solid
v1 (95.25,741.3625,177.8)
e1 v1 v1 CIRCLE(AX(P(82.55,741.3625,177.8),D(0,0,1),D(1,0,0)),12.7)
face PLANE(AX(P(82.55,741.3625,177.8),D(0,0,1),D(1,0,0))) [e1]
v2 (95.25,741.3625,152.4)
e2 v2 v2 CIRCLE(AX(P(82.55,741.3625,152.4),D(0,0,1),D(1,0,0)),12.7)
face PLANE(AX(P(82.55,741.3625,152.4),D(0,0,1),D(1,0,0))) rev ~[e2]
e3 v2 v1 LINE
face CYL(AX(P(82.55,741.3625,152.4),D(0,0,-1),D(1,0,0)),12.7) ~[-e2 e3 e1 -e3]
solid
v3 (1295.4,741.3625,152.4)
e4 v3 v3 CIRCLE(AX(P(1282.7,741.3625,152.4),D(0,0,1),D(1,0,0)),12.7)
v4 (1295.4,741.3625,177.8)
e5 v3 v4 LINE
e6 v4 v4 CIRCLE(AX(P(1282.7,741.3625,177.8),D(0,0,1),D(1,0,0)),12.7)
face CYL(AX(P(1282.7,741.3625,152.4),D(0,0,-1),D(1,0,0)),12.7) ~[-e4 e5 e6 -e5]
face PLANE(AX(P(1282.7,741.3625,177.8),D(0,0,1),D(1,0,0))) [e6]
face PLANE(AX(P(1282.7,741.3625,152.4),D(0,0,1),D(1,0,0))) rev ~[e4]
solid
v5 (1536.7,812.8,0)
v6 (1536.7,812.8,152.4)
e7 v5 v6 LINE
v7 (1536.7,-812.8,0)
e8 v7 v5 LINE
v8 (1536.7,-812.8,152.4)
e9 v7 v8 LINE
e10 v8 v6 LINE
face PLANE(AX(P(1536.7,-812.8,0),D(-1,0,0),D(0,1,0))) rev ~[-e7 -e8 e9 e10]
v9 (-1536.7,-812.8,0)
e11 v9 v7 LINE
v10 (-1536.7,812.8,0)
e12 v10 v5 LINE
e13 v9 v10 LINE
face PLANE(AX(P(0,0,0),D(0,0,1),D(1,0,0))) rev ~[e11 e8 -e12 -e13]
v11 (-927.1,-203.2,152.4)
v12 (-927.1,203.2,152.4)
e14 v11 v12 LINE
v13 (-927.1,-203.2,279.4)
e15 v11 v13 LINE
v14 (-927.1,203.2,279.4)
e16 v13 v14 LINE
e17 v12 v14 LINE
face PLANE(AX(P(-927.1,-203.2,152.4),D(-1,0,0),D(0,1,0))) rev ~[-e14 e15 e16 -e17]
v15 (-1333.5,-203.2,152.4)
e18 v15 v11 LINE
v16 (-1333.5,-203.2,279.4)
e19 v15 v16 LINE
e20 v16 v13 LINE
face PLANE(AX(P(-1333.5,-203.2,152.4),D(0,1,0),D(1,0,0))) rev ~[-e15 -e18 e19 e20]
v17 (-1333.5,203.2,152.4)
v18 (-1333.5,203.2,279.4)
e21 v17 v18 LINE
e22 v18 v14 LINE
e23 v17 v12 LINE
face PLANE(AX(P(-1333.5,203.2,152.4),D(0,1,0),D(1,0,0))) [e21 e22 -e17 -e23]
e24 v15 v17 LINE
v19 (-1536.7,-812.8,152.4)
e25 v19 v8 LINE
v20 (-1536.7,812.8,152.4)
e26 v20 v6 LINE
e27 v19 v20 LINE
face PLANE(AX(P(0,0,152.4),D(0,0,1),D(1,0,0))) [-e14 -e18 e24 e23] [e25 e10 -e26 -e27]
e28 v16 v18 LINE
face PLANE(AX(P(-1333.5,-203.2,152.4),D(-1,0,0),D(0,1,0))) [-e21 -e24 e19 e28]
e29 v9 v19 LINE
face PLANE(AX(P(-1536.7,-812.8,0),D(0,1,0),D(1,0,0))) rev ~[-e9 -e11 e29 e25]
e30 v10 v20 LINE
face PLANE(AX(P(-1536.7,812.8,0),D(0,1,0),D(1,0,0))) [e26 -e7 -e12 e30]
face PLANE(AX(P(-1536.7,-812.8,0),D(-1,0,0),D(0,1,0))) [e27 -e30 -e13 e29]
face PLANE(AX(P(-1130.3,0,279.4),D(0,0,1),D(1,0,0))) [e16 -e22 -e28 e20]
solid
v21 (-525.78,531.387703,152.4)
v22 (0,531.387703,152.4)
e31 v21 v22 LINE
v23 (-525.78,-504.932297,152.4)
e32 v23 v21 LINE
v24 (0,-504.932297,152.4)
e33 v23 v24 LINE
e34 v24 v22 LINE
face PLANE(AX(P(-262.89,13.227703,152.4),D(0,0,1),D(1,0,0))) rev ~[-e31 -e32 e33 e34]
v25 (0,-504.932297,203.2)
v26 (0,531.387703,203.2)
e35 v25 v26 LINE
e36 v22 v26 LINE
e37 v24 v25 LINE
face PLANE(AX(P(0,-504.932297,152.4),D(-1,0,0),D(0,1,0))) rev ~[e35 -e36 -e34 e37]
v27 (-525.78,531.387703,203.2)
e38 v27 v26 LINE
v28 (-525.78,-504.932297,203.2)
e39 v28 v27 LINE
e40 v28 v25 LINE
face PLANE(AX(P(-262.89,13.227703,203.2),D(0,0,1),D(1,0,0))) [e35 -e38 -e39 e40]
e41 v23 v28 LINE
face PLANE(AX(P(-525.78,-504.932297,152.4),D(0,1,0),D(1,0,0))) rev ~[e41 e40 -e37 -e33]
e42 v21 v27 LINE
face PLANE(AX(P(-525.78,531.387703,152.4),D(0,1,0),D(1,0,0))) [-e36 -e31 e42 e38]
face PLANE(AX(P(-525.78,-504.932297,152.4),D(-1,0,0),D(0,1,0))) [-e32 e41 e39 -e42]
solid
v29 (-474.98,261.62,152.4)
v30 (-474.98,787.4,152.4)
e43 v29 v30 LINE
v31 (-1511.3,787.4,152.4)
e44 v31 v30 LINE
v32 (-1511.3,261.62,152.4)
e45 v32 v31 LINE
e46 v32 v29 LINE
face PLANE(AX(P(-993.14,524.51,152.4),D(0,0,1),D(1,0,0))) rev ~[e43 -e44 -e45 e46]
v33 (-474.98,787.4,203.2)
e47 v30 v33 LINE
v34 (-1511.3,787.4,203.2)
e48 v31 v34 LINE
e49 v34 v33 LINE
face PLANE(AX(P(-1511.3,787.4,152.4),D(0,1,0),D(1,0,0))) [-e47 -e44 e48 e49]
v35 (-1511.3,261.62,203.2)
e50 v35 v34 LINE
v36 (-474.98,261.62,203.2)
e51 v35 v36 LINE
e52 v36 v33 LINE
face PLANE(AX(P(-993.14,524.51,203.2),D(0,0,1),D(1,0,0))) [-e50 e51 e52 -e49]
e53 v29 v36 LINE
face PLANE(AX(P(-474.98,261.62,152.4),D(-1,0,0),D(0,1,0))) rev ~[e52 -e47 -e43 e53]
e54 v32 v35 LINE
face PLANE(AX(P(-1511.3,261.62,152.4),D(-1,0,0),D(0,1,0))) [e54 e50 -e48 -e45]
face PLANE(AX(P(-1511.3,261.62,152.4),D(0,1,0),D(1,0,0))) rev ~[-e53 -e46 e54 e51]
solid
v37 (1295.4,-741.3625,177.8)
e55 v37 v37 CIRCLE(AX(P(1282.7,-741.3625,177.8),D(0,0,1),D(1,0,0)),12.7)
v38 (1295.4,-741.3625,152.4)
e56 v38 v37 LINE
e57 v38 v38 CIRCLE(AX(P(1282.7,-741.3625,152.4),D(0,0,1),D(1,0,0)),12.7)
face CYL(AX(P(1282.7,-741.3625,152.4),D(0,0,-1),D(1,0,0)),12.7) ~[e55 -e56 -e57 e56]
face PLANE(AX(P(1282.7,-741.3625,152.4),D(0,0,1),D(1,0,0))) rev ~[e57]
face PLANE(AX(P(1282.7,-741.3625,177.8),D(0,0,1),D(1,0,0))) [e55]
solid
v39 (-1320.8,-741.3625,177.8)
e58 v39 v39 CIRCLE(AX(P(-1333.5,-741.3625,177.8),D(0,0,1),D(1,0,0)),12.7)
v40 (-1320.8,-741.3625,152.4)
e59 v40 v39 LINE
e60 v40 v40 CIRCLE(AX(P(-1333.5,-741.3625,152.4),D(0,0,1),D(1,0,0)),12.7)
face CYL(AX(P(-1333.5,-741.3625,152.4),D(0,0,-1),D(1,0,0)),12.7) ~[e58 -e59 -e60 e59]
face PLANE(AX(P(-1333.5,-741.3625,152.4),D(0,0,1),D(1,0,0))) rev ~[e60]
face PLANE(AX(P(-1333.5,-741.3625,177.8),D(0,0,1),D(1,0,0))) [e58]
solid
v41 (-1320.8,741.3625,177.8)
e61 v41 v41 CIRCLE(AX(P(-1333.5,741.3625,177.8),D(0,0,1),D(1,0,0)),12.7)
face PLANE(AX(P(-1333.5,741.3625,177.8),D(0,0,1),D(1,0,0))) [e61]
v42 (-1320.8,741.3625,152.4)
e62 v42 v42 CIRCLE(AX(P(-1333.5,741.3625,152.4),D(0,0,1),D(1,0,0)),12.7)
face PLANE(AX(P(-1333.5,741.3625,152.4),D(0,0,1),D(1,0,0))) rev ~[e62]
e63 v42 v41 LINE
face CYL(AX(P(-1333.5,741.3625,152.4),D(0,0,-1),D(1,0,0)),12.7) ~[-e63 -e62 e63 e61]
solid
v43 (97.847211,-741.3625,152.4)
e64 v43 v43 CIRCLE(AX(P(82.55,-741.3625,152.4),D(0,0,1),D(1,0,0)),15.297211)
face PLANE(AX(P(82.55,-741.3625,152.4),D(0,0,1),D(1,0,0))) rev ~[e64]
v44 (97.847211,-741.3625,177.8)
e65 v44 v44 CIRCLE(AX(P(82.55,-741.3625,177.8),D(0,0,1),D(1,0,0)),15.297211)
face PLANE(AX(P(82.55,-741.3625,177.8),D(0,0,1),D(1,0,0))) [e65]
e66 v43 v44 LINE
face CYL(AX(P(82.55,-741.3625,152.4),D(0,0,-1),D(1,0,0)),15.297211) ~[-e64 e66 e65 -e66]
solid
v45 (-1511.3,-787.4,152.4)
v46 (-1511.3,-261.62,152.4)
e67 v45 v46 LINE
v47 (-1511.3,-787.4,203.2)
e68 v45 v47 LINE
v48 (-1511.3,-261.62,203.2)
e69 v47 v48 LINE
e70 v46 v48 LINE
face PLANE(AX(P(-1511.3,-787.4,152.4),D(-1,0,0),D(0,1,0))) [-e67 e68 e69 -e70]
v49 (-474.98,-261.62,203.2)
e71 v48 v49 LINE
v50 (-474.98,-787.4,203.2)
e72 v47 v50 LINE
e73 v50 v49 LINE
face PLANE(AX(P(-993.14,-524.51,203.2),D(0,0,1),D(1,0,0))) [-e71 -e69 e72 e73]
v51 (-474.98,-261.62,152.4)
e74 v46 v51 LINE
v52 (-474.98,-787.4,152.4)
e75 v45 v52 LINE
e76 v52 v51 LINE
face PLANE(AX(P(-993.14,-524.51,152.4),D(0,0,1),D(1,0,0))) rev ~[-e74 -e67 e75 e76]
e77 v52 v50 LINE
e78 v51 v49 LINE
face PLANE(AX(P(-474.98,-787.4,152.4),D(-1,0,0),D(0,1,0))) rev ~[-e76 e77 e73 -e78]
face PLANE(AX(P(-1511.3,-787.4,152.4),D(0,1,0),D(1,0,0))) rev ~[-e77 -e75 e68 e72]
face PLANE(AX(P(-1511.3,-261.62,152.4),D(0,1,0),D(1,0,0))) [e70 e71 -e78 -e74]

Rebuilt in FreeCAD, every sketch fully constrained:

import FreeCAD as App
import Part
import Sketcher
from FreeCAD import Vector
Q = App.Units.Quantity


def add_polygon(sketch, points):
    """Adds a closed chain of lines whose ends are joined by coincident constraints."""
    first, n = sketch.GeometryCount, len(points)
    for a, b in zip(points, points[1:] + points[:1]):
        sketch.addGeometry(Part.LineSegment(App.Vector(*a, 0), App.Vector(*b, 0)), False)
    for i in range(n):
        sketch.addConstraint(Sketcher.Constraint("Coincident", first + i, 2, first + (i + 1) % n, 1))

doc = App.newDocument("Part")
body = doc.addObject("PartDesign::Body", "Body")

# Sketch on XY plane
sketch1 = body.newObject("Sketcher::SketchObject", "Sketch")
sketch1.AttachmentSupport = (doc.getObject("XY_Plane"), [""])
sketch1.MapMode = "FlatFace"
add_polygon(sketch1, [(-1537, 813), (-1537, -813), (1537, -813), (1537, 813)])  # lines 0-3
sketch1.addConstraint([
    Sketcher.Constraint("Vertical", 0),
    Sketcher.Constraint("Horizontal", 1),
    Sketcher.Constraint("Vertical", 2),
    Sketcher.Constraint("Horizontal", 3),
    Sketcher.Constraint("Symmetric", 0, 2, 2, 2, -1, 1),
    Sketcher.Constraint("DistanceX", 1, 1, 1, 2, Q("121 in")),
    Sketcher.Constraint("DistanceY", 0, 2, 0, 1, Q("64 in")),
])
pad1 = body.newObject("PartDesign::Pad", "Pad")
pad1.Profile = sketch1
pad1.Length = Q("6 in")

# Sketch on XY plane
sketch2 = body.newObject("Sketcher::SketchObject", "Sketch001")
sketch2.AttachmentSupport = (doc.getObject("XY_Plane"), [""])
sketch2.MapMode = "FlatFace"
sketch2.AttachmentOffset = App.Placement(Vector(0, 0, 6 * 25.4), App.Rotation())
add_polygon(sketch2, [(-1334, 203), (-1334, -203), (-927, -203), (-927, 203)])  # lines 0-3
sketch2.addConstraint([
    Sketcher.Constraint("Vertical", 0),
    Sketcher.Constraint("Horizontal", 1),
    Sketcher.Constraint("Vertical", 2),
    Sketcher.Constraint("Horizontal", 3),
    Sketcher.Constraint("Equal", 3, 0),
    Sketcher.Constraint("DistanceX", 1, 1, 1, 2, Q("16 in")),
    Sketcher.Constraint("DistanceY", 0, 2, -1, 1, Q("8 in")),
    Sketcher.Constraint("DistanceX", 0, 2, -1, 1, Q("52.5 in")),
])
pad2 = body.newObject("PartDesign::Pad", "Pad001")
pad2.Profile = sketch2
pad2.Length = Q("5 in")
body2 = doc.addObject("PartDesign::Body", "Body001")
body2.AllowCompound = True

# Sketch on XY plane
sketch3 = body2.newObject("Sketcher::SketchObject", "Sketch002")
sketch3.AttachmentSupport = (doc.getObject("XY_Plane001"), [""])
sketch3.MapMode = "FlatFace"
sketch3.AttachmentOffset = App.Placement(Vector(0, 0, 6 * 25.4), App.Rotation())
add_polygon(sketch3, [(-1511, -262), (-1511, -787), (-475, -787), (-475, -262)])  # lines 0-3
add_polygon(sketch3, [(-1511, 787), (-1511, 262), (-475, 262), (-475, 787)])  # lines 4-7
sketch3.addConstraint([
    Sketcher.Constraint("Vertical", 0),
    Sketcher.Constraint("Horizontal", 1),
    Sketcher.Constraint("Vertical", 2),
    Sketcher.Constraint("Horizontal", 3),
    Sketcher.Constraint("Vertical", 4),
    Sketcher.Constraint("Horizontal", 5),
    Sketcher.Constraint("Vertical", 6),
    Sketcher.Constraint("Horizontal", 7),
    Sketcher.Constraint("Symmetric", 3, 2, 4, 2, -1),
    Sketcher.Constraint("Symmetric", 1, 2, 6, 2, -1),
    Sketcher.Constraint("DistanceX", 1, 1, 1, 2, Q("40.8 in")),
    Sketcher.Constraint("DistanceY", 0, 2, 0, 1, Q("20.7 in")),
    Sketcher.Constraint("DistanceY", 0, 2, -1, 1, Q("31 in")),
    Sketcher.Constraint("DistanceX", 0, 2, -1, 1, Q("59.5 in")),
])
pad3 = body2.newObject("PartDesign::Pad", "Pad002")
pad3.Profile = sketch3
pad3.Length = Q("2 in")
body3 = doc.addObject("PartDesign::Body", "Body002")
body3.AllowCompound = True

# Sketch on XY plane
sketch4 = body3.newObject("Sketcher::SketchObject", "Sketch003")
sketch4.AttachmentSupport = (doc.getObject("XY_Plane002"), [""])
sketch4.MapMode = "FlatFace"
sketch4.AttachmentOffset = App.Placement(Vector(0, 0, 6 * 25.4), App.Rotation())
sketch4.addGeometry([
    Part.Circle(Vector(-1334, 741, 0), Vector(0, 0, 1), 13),  # 0
    Part.Circle(Vector(-1334, -741, 0), Vector(0, 0, 1), 13),  # 1
    Part.Circle(Vector(83, -741, 0), Vector(0, 0, 1), 15),  # 2
    Part.Circle(Vector(1283, -741, 0), Vector(0, 0, 1), 13),  # 3
    Part.Circle(Vector(1283, 741, 0), Vector(0, 0, 1), 13),  # 4
    Part.Circle(Vector(83, 741, 0), Vector(0, 0, 1), 13),  # 5
], False)
sketch4.addConstraint([
    Sketcher.Constraint("Equal", 0, 1),
    Sketcher.Constraint("Equal", 1, 3),
    Sketcher.Constraint("Equal", 3, 4),
    Sketcher.Constraint("Equal", 4, 5),
    Sketcher.Constraint("Symmetric", 0, 3, 1, 3, -1),
    Sketcher.Constraint("Symmetric", 3, 3, 4, 3, -1),
    Sketcher.Constraint("Symmetric", 2, 3, 5, 3, -1),
    Sketcher.Constraint("Horizontal", 1, 3, 2, 3),
    Sketcher.Constraint("Horizontal", 2, 3, 3, 3),
    Sketcher.Constraint("Diameter", 0, Q("1 in")),
    Sketcher.Constraint("DistanceX", 1, 3, 3, 3, Q("103 in")),
    Sketcher.Constraint("DistanceX", 0, 3, -1, 1, Q("52.5 in")),
    Sketcher.Constraint("DistanceX", -1, 1, 2, 3, Q("3.25 in")),
    Sketcher.Constraint("DistanceY", -1, 1, 0, 3, Q("29.1875 in")),
    Sketcher.Constraint("Diameter", 2, 30.594422),
])
pad4 = body3.newObject("PartDesign::Pad", "Pad003")
pad4.Profile = sketch4
pad4.Length = Q("1 in")
body4 = doc.addObject("PartDesign::Body", "Body003")

# Sketch on XY plane
sketch5 = body4.newObject("Sketcher::SketchObject", "Sketch004")
sketch5.AttachmentSupport = (doc.getObject("XY_Plane003"), [""])
sketch5.MapMode = "FlatFace"
sketch5.AttachmentOffset = App.Placement(Vector(0, 0, 6 * 25.4), App.Rotation())
add_polygon(sketch5, [(-526, 531), (-526, -505), (0, -505), (0, 531)])  # lines 0-3
sketch5.addConstraint([
    Sketcher.Constraint("Vertical", 0),
    Sketcher.Constraint("Horizontal", 1),
    Sketcher.Constraint("Vertical", 2),
    Sketcher.Constraint("Horizontal", 3),
    Sketcher.Constraint("PointOnObject", 1, 2, -2),
    Sketcher.Constraint("DistanceX", 1, 1, 1, 2, Q("20.7 in")),
    Sketcher.Constraint("DistanceY", 0, 2, 0, 1, Q("40.8 in")),
    Sketcher.Constraint("DistanceY", 0, 2, -1, 1, 504.932297),
])
pad5 = body4.newObject("PartDesign::Pad", "Pad004")
pad5.Profile = sketch5
pad5.Length = Q("2 in")

doc.recompute()
